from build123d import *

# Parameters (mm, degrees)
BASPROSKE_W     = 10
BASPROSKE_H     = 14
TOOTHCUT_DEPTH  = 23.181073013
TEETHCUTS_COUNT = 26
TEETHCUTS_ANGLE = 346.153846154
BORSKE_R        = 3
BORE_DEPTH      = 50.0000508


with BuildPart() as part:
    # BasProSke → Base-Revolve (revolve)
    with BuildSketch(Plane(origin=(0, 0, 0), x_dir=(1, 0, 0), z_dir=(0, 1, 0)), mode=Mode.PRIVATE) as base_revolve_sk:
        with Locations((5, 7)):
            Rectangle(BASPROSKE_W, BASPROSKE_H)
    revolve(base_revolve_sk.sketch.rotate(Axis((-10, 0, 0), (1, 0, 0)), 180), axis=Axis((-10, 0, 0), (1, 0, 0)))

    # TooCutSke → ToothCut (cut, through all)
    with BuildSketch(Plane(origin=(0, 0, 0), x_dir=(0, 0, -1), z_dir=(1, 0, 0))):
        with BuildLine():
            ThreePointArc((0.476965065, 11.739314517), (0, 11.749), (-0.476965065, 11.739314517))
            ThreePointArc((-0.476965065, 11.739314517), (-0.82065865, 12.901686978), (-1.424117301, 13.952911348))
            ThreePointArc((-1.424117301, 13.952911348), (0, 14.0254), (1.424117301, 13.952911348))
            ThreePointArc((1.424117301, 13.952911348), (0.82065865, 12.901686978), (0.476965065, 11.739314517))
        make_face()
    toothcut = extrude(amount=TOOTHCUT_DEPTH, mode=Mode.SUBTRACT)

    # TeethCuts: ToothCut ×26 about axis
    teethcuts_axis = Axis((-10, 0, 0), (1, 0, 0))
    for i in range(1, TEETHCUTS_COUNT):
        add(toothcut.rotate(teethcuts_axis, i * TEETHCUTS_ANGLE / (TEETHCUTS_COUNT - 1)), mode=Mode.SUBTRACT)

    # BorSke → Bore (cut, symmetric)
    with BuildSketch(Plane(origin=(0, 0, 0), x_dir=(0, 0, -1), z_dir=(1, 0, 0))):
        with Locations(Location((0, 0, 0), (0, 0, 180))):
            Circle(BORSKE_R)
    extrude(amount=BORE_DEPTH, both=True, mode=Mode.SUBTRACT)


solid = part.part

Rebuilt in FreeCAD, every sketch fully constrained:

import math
import FreeCAD as App
import Part
import Sketcher

V = App.Vector


def add_polygon(sketch, points):
    """Adds a closed chain of lines whose ends are joined by coincident constraints."""
    first, n = sketch.GeometryCount, len(points)
    for a, b in zip(points, points[1:] + points[:1]):
        sketch.addGeometry(Part.LineSegment(App.Vector(*a, 0), App.Vector(*b, 0)), False)
    for i in range(n):
        sketch.addConstraint(Sketcher.Constraint("Coincident", first + i, 2, first + (i + 1) % n, 1))

doc = App.newDocument("Part")
body = doc.addObject("PartDesign::Body", "Body")

# Sketch on XZ plane
sketch1 = body.newObject("Sketcher::SketchObject", "Sketch")
sketch1.AttachmentSupport = (doc.getObject("XZ_Plane"), [""])
sketch1.MapMode = "FlatFace"
add_polygon(sketch1, [(0, -14), (0, 0), (10, 0), (10, -14)])  # lines 0-3
sketch1.addConstraint(Sketcher.Constraint("Vertical", 0))
sketch1.addConstraint(Sketcher.Constraint("Horizontal", 1))
sketch1.addConstraint(Sketcher.Constraint("Vertical", 2))
sketch1.addConstraint(Sketcher.Constraint("Horizontal", 3))
sketch1.addConstraint(Sketcher.Constraint("Coincident", 0, 2, -1, 1))
sketch1.addConstraint(Sketcher.Constraint("DistanceX", 1, 1, 1, 2, 10.0))
sketch1.addConstraint(Sketcher.Constraint("DistanceY", 0, 1, 0, 2, 14.0))
revolution = body.newObject("PartDesign::Revolution", "Revolution")
revolution.Profile = sketch1
revolution.ReferenceAxis = (sketch1, ["H_Axis"])
revolution.Angle = 360

# Sketch on YZ plane
sketch2 = body.newObject("Sketcher::SketchObject", "Sketch001")
sketch2.AttachmentSupport = (doc.getObject("YZ_Plane"), [""])
sketch2.MapMode = "FlatFace"
sketch2.addGeometry(Part.ArcOfCircle(Part.Circle(V(0, 0, 0), V(0, 0, 1), 11.749), math.radians(-2.326632), math.radians(2.326632)), False)
sketch2.addGeometry(Part.ArcOfCircle(Part.Circle(V(10.856102, -5.60141, 0), V(0, 0, 1), 5.2), math.radians(53.448851), math.radians(80.220991)), False)
sketch2.addGeometry(Part.ArcOfCircle(Part.Circle(V(0, 0, 0), V(0, 0, 1), 14.0254), math.radians(-5.827768), math.radians(5.827768)), False)
sketch2.addGeometry(Part.ArcOfCircle(Part.Circle(V(10.856102, 5.60141, 0), V(0, 0, 1), 5.2), math.radians(-80.220991), math.radians(-53.448851)), False)
sketch2.addConstraint(Sketcher.Constraint("Coincident", 0, 1, 1, 2))
sketch2.addConstraint(Sketcher.Constraint("Coincident", 1, 1, 2, 1))
sketch2.addConstraint(Sketcher.Constraint("Coincident", 2, 2, 3, 2))
sketch2.addConstraint(Sketcher.Constraint("Coincident", 3, 1, 0, 2))
sketch2.addConstraint(Sketcher.Constraint("Coincident", 0, 3, -1, 1))
sketch2.addConstraint(Sketcher.Constraint("Coincident", 2, 3, -1, 1))
sketch2.addConstraint(Sketcher.Constraint("Equal", 1, 3))
sketch2.addConstraint(Sketcher.Constraint("Symmetric", 1, 3, 3, 3, -1))
sketch2.addConstraint(Sketcher.Constraint("Radius", 1, 5.2))
sketch2.addConstraint(Sketcher.Constraint("Radius", 0, 11.749))
sketch2.addConstraint(Sketcher.Constraint("Radius", 2, 14.0254))
sketch2.addConstraint(Sketcher.Constraint("DistanceY", 1, 3, -1, 1, 5.60141))
sketch2.addConstraint(Sketcher.Constraint("DistanceX", -1, 1, 1, 1, 13.952911))
pocket1 = body.newObject("PartDesign::Pocket", "Pocket")
pocket1.Profile = sketch2
pocket1.Type = "ThroughAll"
pocket1.Reversed = True
doc.recompute()

polarpattern = body.newObject("PartDesign::PolarPattern", "PolarPattern")
polarpattern.Originals = [pocket1]
polarpattern.Axis = (doc.getObject("X_Axis"), [""])
polarpattern.Angle = 360
polarpattern.Occurrences = 26
body.Tip = polarpattern

# Sketch on YZ plane
sketch3 = body.newObject("Sketcher::SketchObject", "Sketch002")
sketch3.AttachmentSupport = (doc.getObject("YZ_Plane"), [""])
sketch3.MapMode = "FlatFace"
sketch3.addGeometry(Part.Circle(V(0, 0, 0), V(0, 0, 1), 3), False)
sketch3.addConstraint(Sketcher.Constraint("Coincident", 0, 3, -1, 1))
sketch3.addConstraint(Sketcher.Constraint("Diameter", 0, 6.0))
pocket2 = body.newObject("PartDesign::Pocket", "Pocket001")
pocket2.Profile = sketch3
pocket2.Length = 100.000102
pocket2.Midplane = True

doc.recompute()
